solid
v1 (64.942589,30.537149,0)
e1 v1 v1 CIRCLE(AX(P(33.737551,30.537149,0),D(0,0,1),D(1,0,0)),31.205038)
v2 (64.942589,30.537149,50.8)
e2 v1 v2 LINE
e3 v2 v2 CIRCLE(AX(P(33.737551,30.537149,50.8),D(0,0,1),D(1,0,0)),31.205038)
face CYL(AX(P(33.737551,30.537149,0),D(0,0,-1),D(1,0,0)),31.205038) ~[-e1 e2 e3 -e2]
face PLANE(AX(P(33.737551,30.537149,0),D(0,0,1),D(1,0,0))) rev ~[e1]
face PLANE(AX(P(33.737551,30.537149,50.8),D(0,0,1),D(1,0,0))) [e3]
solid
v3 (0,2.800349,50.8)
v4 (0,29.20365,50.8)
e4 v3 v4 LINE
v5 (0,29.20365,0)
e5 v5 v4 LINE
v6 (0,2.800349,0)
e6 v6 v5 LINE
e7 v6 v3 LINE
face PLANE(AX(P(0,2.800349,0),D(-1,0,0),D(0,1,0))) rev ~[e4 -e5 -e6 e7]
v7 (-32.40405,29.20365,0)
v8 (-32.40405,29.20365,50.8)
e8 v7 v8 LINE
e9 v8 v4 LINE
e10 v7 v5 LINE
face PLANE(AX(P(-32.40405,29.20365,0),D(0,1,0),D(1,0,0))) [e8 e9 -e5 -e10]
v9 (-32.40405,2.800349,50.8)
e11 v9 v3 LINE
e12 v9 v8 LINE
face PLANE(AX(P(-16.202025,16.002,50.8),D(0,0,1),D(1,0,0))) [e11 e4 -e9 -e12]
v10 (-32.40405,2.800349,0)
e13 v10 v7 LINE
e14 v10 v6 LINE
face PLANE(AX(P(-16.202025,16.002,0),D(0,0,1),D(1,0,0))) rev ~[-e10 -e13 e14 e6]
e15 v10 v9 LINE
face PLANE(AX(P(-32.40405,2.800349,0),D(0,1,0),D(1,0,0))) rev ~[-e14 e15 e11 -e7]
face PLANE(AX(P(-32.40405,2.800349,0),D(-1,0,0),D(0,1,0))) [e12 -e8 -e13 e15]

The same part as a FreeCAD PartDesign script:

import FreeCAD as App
import Part
import Sketcher
Q = App.Units.Quantity

doc = App.newDocument("Part")
body = doc.addObject("PartDesign::Body", "Body")
body.AllowCompound = True

# Sketch on XY plane
sketch1 = body.newObject("Sketcher::SketchObject", "Sketch")
sketch1.AttachmentSupport = (doc.getObject("XY_Plane"), [""])
sketch1.MapMode = "FlatFace"
sketch1.addGeometry([
    Part.LineSegment(App.Vector(-32.40405, 29.20365, 0), App.Vector(-32.40405, 2.800349, 0)),  # 0
    Part.LineSegment(App.Vector(-32.40405, 2.800349, 0), App.Vector(0, 2.800349, 0)),  # 1
    Part.LineSegment(App.Vector(0, 2.800349, 0), App.Vector(0, 29.20365, 0)),  # 2
    Part.LineSegment(App.Vector(0, 29.20365, 0), App.Vector(-32.40405, 29.20365, 0)),  # 3
    Part.Circle(App.Vector(33.737551, 30.537149, 0), App.Vector(0, 0, 1), 31.205038),  # 4
], False)
sketch1.addConstraint([
    Sketcher.Constraint("Coincident", 0, 2, 1, 1),
    Sketcher.Constraint("Coincident", 1, 2, 2, 1),
    Sketcher.Constraint("Coincident", 2, 2, 3, 1),
    Sketcher.Constraint("Coincident", 3, 2, 0, 1),
    Sketcher.Constraint("Vertical", 0),
    Sketcher.Constraint("Horizontal", 1),
    Sketcher.Constraint("Vertical", 2),
    Sketcher.Constraint("Horizontal", 3),
    Sketcher.Constraint("PointOnObject", 1, 2, -2),
    Sketcher.Constraint("DistanceY", 0, 2, 0, 1, Q("1.0395 in")),
    Sketcher.Constraint("DistanceX", 0, 2, 4, 3, Q("2.604 in")),
    Sketcher.Constraint("DistanceY", 0, 2, 4, 3, Q("1.092 in")),
    Sketcher.Constraint("Diameter", 4, Q("62.410076 mm")),
    Sketcher.Constraint("DistanceX", 1, 1, 1, 2, Q("32.40405 mm")),
    Sketcher.Constraint("DistanceY", -1, 1, 4, 3, Q("30.537149 mm")),
])
pad1 = body.newObject("PartDesign::Pad", "Pad")
pad1.Profile = sketch1
pad1.Length = Q("2 in")

doc.recompute()
